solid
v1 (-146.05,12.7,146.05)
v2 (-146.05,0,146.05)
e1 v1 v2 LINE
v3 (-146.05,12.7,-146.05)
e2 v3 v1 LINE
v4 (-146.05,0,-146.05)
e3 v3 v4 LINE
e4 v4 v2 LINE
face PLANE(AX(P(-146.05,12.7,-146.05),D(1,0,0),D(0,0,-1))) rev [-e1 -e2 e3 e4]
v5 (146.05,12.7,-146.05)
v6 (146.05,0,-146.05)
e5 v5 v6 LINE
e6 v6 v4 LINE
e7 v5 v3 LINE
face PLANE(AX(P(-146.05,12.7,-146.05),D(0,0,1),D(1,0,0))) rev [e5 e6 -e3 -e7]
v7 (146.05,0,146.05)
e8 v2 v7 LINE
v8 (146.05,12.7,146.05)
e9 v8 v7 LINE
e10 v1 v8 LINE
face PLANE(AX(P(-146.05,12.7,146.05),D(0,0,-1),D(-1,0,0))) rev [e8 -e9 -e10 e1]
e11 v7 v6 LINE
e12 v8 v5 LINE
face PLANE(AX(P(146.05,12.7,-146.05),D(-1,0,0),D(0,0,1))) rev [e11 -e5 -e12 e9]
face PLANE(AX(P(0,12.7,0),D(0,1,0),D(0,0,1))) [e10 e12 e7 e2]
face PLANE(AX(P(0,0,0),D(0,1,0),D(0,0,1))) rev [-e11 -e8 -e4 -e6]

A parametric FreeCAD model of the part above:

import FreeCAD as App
import Part
import Sketcher
from FreeCAD import Vector
Q = App.Units.Quantity

doc = App.newDocument("Part")
params = doc.addObject("Spreadsheet::Sheet", "Params")
for row, (alias, value) in enumerate([
    ("sketch1_width", "11.5 in"),
    ("pad1_length", "0.5 in"),
], start=1):
    params.set(f"A{row}", alias)
    params.set(f"B{row}", "=" + value)
    params.setAlias(f"B{row}", alias)

body = doc.addObject("PartDesign::Body", "Body")

# Sketch on XZ plane
sketch1 = body.newObject("Sketcher::SketchObject", "Sketch")
sketch1.AttachmentSupport = (doc.getObject("XZ_Plane"), [""])
sketch1.MapMode = "FlatFace"
sketch1.addGeometry([
    Part.LineSegment(Vector(-146, -146, 0), Vector(-146, 146, 0)),
    Part.LineSegment(Vector(-146, 146, 0), Vector(146, 146, 0)),
    Part.LineSegment(Vector(146, 146, 0), Vector(146, -146, 0)),
    Part.LineSegment(Vector(146, -146, 0), Vector(-146, -146, 0)),
], False)
sketch1.addConstraint([
    Sketcher.Constraint("Coincident", 0, 2, 1, 1),
    Sketcher.Constraint("Coincident", 1, 2, 2, 1),
    Sketcher.Constraint("Coincident", 2, 2, 3, 1),
    Sketcher.Constraint("Coincident", 3, 2, 0, 1),
    Sketcher.Constraint("Vertical", 0),
    Sketcher.Constraint("Horizontal", 1),
    Sketcher.Constraint("Vertical", 2),
    Sketcher.Constraint("Horizontal", 3),
    Sketcher.Constraint("Symmetric", 0, 2, 2, 2, -1, 1),
    Sketcher.Constraint("Equal", 3, 0),
    Sketcher.Constraint("DistanceX", 1, 1, 1, 2, Q("11.5 in")),
])
sketch1.setExpression("Constraints[10]", "Params.sketch1_width")
pad1 = body.newObject("PartDesign::Pad", "Pad")
pad1.Profile = sketch1
pad1.setExpression("Length", "Params.pad1_length")
pad1.Reversed = True

doc.recompute()
